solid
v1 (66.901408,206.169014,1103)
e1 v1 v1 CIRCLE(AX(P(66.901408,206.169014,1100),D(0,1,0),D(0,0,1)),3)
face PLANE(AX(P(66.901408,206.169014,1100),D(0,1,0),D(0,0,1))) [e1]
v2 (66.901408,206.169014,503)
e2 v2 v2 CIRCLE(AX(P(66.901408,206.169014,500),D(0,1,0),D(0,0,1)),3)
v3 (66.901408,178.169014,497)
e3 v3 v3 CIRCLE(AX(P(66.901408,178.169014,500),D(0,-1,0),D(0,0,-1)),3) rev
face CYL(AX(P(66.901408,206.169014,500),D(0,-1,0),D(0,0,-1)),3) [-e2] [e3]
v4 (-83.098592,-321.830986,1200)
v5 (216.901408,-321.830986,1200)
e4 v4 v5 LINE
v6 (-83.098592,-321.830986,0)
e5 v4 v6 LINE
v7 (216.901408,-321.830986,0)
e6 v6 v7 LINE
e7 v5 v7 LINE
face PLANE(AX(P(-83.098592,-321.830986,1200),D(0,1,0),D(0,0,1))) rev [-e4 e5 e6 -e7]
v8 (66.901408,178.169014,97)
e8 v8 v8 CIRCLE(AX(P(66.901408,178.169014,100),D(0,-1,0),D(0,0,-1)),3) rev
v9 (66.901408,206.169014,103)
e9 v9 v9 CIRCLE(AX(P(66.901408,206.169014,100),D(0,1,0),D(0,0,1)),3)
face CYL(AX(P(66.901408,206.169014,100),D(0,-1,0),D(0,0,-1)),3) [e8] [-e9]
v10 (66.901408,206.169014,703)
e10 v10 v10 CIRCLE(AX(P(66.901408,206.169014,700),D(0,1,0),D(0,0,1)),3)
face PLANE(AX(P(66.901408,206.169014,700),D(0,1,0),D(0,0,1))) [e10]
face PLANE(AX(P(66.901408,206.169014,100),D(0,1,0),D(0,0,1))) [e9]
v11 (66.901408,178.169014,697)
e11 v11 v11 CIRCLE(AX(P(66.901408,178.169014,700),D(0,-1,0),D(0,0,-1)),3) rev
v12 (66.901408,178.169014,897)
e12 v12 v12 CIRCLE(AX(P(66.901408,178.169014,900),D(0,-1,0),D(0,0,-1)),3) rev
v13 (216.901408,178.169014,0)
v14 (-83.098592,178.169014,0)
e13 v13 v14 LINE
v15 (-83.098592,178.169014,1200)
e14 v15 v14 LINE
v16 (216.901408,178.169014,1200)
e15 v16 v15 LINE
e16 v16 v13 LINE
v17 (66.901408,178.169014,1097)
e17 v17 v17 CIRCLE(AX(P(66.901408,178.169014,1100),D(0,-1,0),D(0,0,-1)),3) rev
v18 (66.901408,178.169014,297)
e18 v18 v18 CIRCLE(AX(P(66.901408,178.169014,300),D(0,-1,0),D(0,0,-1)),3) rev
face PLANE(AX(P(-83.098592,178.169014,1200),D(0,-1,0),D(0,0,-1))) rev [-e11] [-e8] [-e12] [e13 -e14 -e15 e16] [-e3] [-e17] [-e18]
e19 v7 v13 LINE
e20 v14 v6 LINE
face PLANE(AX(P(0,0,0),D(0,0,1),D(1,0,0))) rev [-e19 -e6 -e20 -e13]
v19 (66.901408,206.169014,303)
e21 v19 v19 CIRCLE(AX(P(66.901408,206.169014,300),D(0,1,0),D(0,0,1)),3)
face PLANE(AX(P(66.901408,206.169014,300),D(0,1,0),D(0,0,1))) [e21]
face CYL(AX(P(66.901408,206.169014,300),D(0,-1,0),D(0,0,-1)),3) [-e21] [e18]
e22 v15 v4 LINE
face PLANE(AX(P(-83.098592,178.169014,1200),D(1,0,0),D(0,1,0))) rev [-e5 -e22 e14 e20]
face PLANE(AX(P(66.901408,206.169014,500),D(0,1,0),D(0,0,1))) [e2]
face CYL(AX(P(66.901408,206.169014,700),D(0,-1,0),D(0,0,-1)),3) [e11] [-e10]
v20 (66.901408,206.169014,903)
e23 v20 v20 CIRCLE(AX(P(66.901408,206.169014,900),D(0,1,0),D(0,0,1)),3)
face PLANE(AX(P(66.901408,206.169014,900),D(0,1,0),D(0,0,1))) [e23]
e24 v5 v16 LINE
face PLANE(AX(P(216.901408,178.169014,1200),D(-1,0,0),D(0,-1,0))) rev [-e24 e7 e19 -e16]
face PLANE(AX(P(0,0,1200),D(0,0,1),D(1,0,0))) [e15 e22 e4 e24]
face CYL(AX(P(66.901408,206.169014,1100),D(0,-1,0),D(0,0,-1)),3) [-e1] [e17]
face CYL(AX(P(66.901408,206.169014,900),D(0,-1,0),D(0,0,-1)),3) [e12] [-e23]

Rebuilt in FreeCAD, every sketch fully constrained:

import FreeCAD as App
import Part
import Sketcher

V = App.Vector
Q = App.Units.Quantity

doc = App.newDocument("Part")
body = doc.addObject("PartDesign::Body", "Body")

sketch1 = doc.addObject("Sketcher::SketchObject", "Sketch")
body.addObject(sketch1)
sketch1.AttachmentSupport = (doc.XY_Plane, [""])
sketch1.MapMode = "FlatFace"
sketch1.addGeometry(Part.LineSegment(V(-83, 178, 0), V(-83, -322, 0)), False)
sketch1.addGeometry(Part.LineSegment(V(-83, -322, 0), V(217, -322, 0)), False)
sketch1.addGeometry(Part.LineSegment(V(217, -322, 0), V(217, 178, 0)), False)
sketch1.addGeometry(Part.LineSegment(V(217, 178, 0), V(-83, 178, 0)), False)
sketch1.addConstraint(Sketcher.Constraint("Coincident", 0, 2, 1, 1))
sketch1.addConstraint(Sketcher.Constraint("Coincident", 1, 2, 2, 1))
sketch1.addConstraint(Sketcher.Constraint("Coincident", 2, 2, 3, 1))
sketch1.addConstraint(Sketcher.Constraint("Coincident", 3, 2, 0, 1))
sketch1.addConstraint(Sketcher.Constraint("Vertical", 0))
sketch1.addConstraint(Sketcher.Constraint("Horizontal", 1))
sketch1.addConstraint(Sketcher.Constraint("Vertical", 2))
sketch1.addConstraint(Sketcher.Constraint("Horizontal", 3))
sketch1.addConstraint(Sketcher.Constraint("DistanceX", 1, 1, 1, 2, Q("300 mm")))
sketch1.addConstraint(Sketcher.Constraint("DistanceY", 0, 2, 0, 1, Q("500 mm")))
sketch1.addConstraint(Sketcher.Constraint("DistanceX", 0, 2, -1, 1, Q("83.098592 mm")))
sketch1.addConstraint(Sketcher.Constraint("DistanceY", 0, 2, -1, 1, Q("321.830986 mm")))
pad1 = doc.addObject("PartDesign::Pad", "Pad")
body.addObject(pad1)
pad1.Profile = sketch1
pad1.Length = 1200

sketch2 = doc.addObject("Sketcher::SketchObject", "Sketch001")
body.addObject(sketch2)
sketch2.AttachmentSupport = (doc.XZ_Plane, [""])
sketch2.MapMode = "FlatFace"
sketch2.AttachmentOffset = App.Placement(V(0, 0, -178.169014), App.Rotation())
sketch2.addGeometry(Part.Circle(V(66.9, 100, 0), V(0, 0, 1), 3), False)
sketch2.addGeometry(Part.Circle(V(66.9, 300, 0), V(0, 0, 1), 3), False)
sketch2.addGeometry(Part.Circle(V(66.9, 500, 0), V(0, 0, 1), 3), False)
sketch2.addGeometry(Part.Circle(V(66.9, 700, 0), V(0, 0, 1), 3), False)
sketch2.addGeometry(Part.Circle(V(66.9, 900, 0), V(0, 0, 1), 3), False)
sketch2.addGeometry(Part.Circle(V(66.9, 1100, 0), V(0, 0, 1), 3), False)
sketch2.addConstraint(Sketcher.Constraint("Equal", 0, 1))
sketch2.addConstraint(Sketcher.Constraint("Equal", 1, 2))
sketch2.addConstraint(Sketcher.Constraint("Equal", 2, 3))
sketch2.addConstraint(Sketcher.Constraint("Equal", 3, 4))
sketch2.addConstraint(Sketcher.Constraint("Equal", 4, 5))
sketch2.addConstraint(Sketcher.Constraint("Vertical", 0, 3, 1, 3))
sketch2.addConstraint(Sketcher.Constraint("Vertical", 1, 3, 2, 3))
sketch2.addConstraint(Sketcher.Constraint("Vertical", 2, 3, 3, 3))
sketch2.addConstraint(Sketcher.Constraint("Vertical", 3, 3, 4, 3))
sketch2.addConstraint(Sketcher.Constraint("Vertical", 4, 3, 5, 3))
sketch2.addConstraint(Sketcher.Constraint("Diameter", 0, Q("6 mm")))
sketch2.addConstraint(Sketcher.Constraint("DistanceY", -1, 1, 0, 3, Q("100 mm")))
sketch2.addConstraint(Sketcher.Constraint("DistanceY", -1, 1, 1, 3, Q("300 mm")))
sketch2.addConstraint(Sketcher.Constraint("DistanceY", -1, 1, 2, 3, Q("500 mm")))
sketch2.addConstraint(Sketcher.Constraint("DistanceY", -1, 1, 3, 3, Q("700 mm")))
sketch2.addConstraint(Sketcher.Constraint("DistanceY", -1, 1, 4, 3, Q("900 mm")))
sketch2.addConstraint(Sketcher.Constraint("DistanceY", -1, 1, 5, 3, Q("1100 mm")))
sketch2.addConstraint(Sketcher.Constraint("DistanceX", -1, 1, 0, 3, Q("66.901408 mm")))
pad2 = doc.addObject("PartDesign::Pad", "Pad001")
body.addObject(pad2)
pad2.Profile = sketch2
pad2.Length = 28
pad2.Reversed = True

doc.recompute()
